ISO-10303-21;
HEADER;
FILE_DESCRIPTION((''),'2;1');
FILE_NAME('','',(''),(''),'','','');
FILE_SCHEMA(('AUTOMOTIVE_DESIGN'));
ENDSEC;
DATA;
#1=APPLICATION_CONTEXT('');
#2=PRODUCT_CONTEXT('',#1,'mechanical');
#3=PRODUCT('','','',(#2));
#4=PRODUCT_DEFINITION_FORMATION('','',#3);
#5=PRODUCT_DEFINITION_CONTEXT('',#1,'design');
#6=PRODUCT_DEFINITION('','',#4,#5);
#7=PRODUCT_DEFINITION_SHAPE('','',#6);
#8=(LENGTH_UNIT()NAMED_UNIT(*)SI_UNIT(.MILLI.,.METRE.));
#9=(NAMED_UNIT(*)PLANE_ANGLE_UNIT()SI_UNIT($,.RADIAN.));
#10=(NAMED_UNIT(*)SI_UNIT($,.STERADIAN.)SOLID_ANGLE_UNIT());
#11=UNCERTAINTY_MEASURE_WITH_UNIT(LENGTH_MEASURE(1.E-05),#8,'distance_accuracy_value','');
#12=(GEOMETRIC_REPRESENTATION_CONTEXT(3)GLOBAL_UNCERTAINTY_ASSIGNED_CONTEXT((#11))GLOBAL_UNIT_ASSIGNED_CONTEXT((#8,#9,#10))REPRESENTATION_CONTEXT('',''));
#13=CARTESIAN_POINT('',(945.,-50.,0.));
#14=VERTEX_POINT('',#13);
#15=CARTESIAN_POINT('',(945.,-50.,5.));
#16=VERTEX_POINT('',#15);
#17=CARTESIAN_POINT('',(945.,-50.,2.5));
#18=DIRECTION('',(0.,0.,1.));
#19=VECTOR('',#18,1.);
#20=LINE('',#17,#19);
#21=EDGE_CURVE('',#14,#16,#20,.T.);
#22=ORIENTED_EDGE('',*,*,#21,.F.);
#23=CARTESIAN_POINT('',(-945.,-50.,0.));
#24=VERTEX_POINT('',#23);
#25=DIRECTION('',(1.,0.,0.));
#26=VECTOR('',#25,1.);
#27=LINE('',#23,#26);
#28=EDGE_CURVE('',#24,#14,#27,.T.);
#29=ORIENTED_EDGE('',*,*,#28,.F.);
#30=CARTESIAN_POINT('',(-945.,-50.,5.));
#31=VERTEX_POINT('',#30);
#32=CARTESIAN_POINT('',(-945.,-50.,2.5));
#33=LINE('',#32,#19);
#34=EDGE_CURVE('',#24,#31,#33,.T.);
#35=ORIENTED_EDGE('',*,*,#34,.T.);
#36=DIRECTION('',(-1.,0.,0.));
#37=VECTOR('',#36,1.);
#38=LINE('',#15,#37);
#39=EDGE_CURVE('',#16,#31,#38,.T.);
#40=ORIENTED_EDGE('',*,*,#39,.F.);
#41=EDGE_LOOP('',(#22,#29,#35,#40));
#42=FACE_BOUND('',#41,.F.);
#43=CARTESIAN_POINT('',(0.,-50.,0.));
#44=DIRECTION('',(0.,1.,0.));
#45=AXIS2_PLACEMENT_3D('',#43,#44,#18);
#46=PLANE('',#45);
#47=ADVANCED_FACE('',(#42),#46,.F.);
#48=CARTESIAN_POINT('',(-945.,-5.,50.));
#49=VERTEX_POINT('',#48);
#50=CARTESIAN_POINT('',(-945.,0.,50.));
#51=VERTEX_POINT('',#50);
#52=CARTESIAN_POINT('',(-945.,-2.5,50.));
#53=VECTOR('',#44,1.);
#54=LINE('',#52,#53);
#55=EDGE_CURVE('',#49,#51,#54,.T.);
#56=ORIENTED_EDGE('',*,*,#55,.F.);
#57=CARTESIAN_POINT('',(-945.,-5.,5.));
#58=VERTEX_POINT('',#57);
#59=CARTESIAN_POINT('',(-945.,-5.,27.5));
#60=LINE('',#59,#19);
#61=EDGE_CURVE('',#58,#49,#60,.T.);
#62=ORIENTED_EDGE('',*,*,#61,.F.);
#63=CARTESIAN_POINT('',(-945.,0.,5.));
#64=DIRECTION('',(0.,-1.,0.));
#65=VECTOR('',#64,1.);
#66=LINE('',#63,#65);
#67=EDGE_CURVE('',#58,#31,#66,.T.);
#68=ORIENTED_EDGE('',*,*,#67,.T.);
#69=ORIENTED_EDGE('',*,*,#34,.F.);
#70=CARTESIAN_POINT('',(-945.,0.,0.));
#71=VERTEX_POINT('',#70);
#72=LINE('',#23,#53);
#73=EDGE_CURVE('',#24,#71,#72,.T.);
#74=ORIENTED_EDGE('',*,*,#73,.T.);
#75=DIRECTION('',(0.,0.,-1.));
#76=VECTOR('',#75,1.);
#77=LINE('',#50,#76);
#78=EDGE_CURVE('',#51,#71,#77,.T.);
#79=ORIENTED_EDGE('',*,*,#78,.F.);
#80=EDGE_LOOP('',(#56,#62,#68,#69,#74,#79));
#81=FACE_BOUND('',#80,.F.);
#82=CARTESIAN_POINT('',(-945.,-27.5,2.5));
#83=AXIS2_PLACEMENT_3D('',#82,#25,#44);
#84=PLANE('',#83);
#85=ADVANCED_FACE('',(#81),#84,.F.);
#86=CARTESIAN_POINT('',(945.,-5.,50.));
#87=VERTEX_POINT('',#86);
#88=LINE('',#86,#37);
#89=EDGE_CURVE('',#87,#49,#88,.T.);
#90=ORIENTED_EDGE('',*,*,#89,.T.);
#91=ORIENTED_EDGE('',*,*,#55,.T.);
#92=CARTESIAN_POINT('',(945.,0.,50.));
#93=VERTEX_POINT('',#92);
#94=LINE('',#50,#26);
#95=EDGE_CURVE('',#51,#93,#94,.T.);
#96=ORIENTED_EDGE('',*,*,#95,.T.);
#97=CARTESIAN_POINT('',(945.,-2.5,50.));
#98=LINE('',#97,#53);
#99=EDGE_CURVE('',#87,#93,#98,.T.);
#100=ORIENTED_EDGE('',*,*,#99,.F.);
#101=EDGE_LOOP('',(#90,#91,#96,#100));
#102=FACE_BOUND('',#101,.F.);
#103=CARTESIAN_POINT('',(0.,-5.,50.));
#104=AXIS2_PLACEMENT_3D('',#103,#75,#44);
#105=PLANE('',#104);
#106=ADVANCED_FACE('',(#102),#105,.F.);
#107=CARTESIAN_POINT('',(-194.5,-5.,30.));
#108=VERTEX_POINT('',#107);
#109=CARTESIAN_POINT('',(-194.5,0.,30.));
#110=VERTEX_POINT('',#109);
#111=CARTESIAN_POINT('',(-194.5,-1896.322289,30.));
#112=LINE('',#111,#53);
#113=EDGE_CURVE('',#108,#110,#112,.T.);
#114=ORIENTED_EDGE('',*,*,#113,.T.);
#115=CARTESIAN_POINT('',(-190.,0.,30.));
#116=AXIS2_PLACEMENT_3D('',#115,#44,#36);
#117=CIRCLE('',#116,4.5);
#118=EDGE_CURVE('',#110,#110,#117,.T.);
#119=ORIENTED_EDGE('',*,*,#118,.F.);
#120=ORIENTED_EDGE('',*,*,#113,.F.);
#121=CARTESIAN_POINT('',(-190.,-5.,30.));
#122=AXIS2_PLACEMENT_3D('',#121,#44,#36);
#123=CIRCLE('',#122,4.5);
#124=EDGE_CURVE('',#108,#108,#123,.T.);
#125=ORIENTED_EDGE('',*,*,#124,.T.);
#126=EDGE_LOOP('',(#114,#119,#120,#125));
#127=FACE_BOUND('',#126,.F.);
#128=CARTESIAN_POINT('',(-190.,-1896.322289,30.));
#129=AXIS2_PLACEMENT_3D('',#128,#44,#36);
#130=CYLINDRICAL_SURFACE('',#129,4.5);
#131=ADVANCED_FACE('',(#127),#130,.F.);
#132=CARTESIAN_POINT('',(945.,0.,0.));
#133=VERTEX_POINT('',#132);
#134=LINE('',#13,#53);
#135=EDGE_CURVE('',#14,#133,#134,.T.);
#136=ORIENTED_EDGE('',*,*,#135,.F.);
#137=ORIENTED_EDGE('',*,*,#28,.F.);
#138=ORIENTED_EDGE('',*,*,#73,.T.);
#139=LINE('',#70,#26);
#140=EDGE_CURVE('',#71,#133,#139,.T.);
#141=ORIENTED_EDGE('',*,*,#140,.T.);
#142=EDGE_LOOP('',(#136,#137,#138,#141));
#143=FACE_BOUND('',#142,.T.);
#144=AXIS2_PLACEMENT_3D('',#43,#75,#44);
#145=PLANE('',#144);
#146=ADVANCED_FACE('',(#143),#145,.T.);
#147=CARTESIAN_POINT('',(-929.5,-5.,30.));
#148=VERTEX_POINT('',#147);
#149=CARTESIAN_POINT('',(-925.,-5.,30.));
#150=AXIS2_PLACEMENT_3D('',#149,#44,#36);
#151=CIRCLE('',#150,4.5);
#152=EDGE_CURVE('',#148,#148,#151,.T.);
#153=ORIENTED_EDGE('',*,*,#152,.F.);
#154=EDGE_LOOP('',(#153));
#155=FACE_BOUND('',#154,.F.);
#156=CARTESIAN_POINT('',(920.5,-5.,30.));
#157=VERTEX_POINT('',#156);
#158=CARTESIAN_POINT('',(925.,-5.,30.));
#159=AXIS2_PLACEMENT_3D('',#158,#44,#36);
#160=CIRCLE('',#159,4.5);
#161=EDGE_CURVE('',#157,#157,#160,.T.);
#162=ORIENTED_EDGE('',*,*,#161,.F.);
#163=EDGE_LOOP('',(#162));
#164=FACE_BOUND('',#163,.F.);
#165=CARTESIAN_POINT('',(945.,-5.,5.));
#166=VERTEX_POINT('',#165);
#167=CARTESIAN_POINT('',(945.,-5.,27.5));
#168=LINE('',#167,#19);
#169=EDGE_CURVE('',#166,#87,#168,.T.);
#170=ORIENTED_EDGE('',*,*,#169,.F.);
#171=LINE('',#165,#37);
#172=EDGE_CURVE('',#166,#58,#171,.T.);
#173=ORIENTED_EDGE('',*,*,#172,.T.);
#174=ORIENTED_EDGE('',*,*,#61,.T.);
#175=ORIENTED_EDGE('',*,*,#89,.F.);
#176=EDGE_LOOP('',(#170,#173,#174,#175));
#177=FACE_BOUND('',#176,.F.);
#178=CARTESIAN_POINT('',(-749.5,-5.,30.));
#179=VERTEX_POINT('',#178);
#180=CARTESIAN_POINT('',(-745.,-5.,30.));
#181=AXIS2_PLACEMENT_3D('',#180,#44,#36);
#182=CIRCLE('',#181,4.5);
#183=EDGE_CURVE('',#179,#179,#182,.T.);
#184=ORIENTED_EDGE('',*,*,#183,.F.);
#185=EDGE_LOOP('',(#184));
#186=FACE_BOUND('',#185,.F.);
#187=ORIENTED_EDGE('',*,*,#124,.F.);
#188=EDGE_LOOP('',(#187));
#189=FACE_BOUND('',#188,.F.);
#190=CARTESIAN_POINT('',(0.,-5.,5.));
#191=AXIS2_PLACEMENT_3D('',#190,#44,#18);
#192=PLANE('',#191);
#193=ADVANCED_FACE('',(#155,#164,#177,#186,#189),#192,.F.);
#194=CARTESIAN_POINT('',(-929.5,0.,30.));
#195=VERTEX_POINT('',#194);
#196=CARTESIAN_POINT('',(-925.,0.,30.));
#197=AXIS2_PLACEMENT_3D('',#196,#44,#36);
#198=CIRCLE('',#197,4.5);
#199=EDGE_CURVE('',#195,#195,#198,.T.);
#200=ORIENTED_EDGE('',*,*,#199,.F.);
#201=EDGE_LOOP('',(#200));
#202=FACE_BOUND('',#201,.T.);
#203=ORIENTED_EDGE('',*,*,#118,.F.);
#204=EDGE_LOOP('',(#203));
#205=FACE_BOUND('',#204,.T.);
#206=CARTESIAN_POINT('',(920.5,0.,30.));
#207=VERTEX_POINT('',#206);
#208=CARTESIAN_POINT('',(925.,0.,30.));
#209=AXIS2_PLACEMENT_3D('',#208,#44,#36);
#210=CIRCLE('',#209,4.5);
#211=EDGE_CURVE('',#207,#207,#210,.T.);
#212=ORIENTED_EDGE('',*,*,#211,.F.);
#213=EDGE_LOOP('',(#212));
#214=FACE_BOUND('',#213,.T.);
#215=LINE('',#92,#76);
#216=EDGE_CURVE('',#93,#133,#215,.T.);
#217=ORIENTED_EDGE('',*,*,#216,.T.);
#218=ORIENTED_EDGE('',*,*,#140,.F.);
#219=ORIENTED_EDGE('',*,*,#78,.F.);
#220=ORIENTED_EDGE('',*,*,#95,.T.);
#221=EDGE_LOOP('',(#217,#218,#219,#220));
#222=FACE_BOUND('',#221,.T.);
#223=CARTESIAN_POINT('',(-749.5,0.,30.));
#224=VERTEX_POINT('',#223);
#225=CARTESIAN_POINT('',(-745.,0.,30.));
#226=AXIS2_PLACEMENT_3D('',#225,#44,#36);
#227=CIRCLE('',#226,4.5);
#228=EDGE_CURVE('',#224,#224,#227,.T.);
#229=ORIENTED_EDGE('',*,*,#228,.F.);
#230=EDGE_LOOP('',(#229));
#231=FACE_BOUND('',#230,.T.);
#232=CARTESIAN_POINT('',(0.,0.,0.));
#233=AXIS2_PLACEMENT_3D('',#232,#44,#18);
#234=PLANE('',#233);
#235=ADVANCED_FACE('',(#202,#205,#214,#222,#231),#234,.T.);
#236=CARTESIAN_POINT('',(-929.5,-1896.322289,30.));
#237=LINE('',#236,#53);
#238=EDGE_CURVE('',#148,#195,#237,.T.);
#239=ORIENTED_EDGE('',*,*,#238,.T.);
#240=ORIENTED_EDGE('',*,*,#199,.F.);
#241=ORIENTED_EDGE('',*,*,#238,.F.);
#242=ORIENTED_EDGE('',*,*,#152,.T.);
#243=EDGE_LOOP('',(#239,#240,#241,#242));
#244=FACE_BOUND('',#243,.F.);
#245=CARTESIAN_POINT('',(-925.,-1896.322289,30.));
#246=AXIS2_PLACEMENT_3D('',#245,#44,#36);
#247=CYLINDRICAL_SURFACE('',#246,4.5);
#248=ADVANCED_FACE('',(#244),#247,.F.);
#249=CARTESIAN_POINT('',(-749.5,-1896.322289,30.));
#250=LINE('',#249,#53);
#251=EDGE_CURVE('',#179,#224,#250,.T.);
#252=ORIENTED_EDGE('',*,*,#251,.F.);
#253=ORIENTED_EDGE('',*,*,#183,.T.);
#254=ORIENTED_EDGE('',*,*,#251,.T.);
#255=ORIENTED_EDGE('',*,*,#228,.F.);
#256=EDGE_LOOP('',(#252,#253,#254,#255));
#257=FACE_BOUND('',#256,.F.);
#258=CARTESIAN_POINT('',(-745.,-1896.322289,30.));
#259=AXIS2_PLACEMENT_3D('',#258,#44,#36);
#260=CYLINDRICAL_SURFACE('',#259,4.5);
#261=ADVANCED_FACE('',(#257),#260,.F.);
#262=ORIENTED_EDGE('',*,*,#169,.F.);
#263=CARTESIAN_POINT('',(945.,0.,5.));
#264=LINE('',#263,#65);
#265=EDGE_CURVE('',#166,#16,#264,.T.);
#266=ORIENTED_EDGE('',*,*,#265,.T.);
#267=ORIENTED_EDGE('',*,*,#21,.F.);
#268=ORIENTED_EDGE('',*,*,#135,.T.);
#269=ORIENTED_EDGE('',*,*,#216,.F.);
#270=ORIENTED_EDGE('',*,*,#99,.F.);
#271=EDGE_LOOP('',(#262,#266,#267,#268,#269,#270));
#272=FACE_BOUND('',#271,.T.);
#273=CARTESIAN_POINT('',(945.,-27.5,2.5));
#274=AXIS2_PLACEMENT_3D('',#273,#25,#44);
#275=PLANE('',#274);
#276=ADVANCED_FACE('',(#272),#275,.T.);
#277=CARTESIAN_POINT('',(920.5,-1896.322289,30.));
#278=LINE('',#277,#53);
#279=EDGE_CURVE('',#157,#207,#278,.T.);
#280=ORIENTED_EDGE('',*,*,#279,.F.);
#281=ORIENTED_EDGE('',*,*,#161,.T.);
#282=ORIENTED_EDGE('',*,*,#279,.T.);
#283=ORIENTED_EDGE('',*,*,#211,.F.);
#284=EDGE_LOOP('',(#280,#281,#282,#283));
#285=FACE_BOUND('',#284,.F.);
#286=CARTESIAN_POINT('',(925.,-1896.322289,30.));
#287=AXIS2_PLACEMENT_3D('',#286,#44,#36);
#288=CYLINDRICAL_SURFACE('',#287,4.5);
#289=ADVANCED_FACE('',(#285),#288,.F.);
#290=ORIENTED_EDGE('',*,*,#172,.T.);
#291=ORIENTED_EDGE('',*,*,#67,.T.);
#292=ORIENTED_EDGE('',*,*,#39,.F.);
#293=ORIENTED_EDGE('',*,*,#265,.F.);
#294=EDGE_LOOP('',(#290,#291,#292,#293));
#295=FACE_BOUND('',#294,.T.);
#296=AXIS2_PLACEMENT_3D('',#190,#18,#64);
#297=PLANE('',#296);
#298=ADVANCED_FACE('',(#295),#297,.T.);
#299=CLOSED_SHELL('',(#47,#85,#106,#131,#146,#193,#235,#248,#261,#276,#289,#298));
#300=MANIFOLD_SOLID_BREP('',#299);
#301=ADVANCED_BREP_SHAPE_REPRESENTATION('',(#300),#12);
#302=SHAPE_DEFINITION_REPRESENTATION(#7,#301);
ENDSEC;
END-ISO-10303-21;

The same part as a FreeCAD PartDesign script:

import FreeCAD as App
import Part
import Sketcher
Q = App.Units.Quantity


def add_polygon(sketch, points):
    """Adds a closed chain of lines whose ends are joined by coincident constraints."""
    first, n = sketch.GeometryCount, len(points)
    for a, b in zip(points, points[1:] + points[:1]):
        sketch.addGeometry(Part.LineSegment(App.Vector(*a, 0), App.Vector(*b, 0)), False)
    for i in range(n):
        sketch.addConstraint(Sketcher.Constraint("Coincident", first + i, 2, first + (i + 1) % n, 1))

doc = App.newDocument("Part")
body = doc.addObject("PartDesign::Body", "Body")

sketch1 = body.newObject("Sketcher::SketchObject", "Sketch")
sketch1.AttachmentSupport = (doc.getObject("YZ_Plane"), [""])
sketch1.MapMode = "FlatFace"
add_polygon(sketch1, [(-50, 5), (-50, 0), (0, 0), (0, 50), (-5, 50), (-5, 5)])
sketch1.addConstraint(Sketcher.Constraint("Vertical", 0))
sketch1.addConstraint(Sketcher.Constraint("Horizontal", 1))
sketch1.addConstraint(Sketcher.Constraint("Vertical", 2))
sketch1.addConstraint(Sketcher.Constraint("Horizontal", 3))
sketch1.addConstraint(Sketcher.Constraint("Vertical", 4))
sketch1.addConstraint(Sketcher.Constraint("Horizontal", 5))
sketch1.addConstraint(Sketcher.Constraint("Coincident", 1, 2, -1, 1))
sketch1.addConstraint(Sketcher.Constraint("Equal", 3, 0))
sketch1.addConstraint(Sketcher.Constraint("Equal", 1, 2))
sketch1.addConstraint(Sketcher.Constraint("DistanceX", 1, 1, 1, 2, Q("50 mm")))
sketch1.addConstraint(Sketcher.Constraint("DistanceX", 3, 2, 3, 1, Q("5 mm")))
pad1 = body.newObject("PartDesign::Pad", "Pad")
pad1.Profile = sketch1
pad1.Length = 1890
pad1.Midplane = True

sketch2 = body.newObject("Sketcher::SketchObject", "Sketch001")
sketch2.AttachmentSupport = (doc.getObject("XZ_Plane"), [""])
sketch2.MapMode = "FlatFace"
sketch2.AttachmentOffset = App.Placement(App.Vector(0, 0, 5), App.Rotation())
add_polygon(sketch2, [(-945, 50), (-945, 5), (945, 5), (945, 50)])
sketch2.addConstraint(Sketcher.Constraint("Vertical", 0))
sketch2.addConstraint(Sketcher.Constraint("Horizontal", 1))
sketch2.addConstraint(Sketcher.Constraint("Vertical", 2))
sketch2.addConstraint(Sketcher.Constraint("Horizontal", 3))
sketch2.addConstraint(Sketcher.Constraint("DistanceX", 1, 1, 1, 2, Q("1890 mm")))
sketch2.addConstraint(Sketcher.Constraint("DistanceY", 0, 2, 0, 1, Q("45 mm")))
sketch2.addConstraint(Sketcher.Constraint("DistanceX", 0, 2, -1, 1, Q("945 mm")))
sketch2.addConstraint(Sketcher.Constraint("DistanceY", -1, 1, 0, 2, Q("5 mm")))
pad2 = body.newObject("PartDesign::Pad", "Pad001")
pad2.Profile = sketch2
pad2.Length = 5
pad2.Reversed = True

sketch3 = body.newObject("Sketcher::SketchObject", "Sketch002")
sketch3.AttachmentSupport = (doc.getObject("XZ_Plane"), [""])
sketch3.MapMode = "FlatFace"
sketch3.AttachmentOffset = App.Placement(App.Vector(0, 0, 5), App.Rotation())
sketch3.addGeometry(Part.Circle(App.Vector(-925, 30, 0), App.Vector(0, 0, 1), 4.5), False)
sketch3.addGeometry(Part.Circle(App.Vector(-745, 30, 0), App.Vector(0, 0, 1), 4.5), False)
sketch3.addGeometry(Part.Circle(App.Vector(-190, 30, 0), App.Vector(0, 0, 1), 4.5), False)
sketch3.addGeometry(Part.Circle(App.Vector(925, 30, 0), App.Vector(0, 0, 1), 4.5), False)
sketch3.addConstraint(Sketcher.Constraint("Equal", 0, 1))
sketch3.addConstraint(Sketcher.Constraint("Equal", 1, 2))
sketch3.addConstraint(Sketcher.Constraint("Equal", 2, 3))
sketch3.addConstraint(Sketcher.Constraint("Symmetric", 0, 3, 3, 3, -2))
sketch3.addConstraint(Sketcher.Constraint("Horizontal", 0, 3, 1, 3))
sketch3.addConstraint(Sketcher.Constraint("Horizontal", 1, 3, 2, 3))
sketch3.addConstraint(Sketcher.Constraint("Diameter", 0, Q("9 mm")))
sketch3.addConstraint(Sketcher.Constraint("DistanceX", 0, 3, -1, 1, Q("925 mm")))
sketch3.addConstraint(Sketcher.Constraint("DistanceY", -1, 1, 0, 3, Q("30 mm")))
sketch3.addConstraint(Sketcher.Constraint("DistanceX", 1, 3, -1, 1, Q("745 mm")))
sketch3.addConstraint(Sketcher.Constraint("DistanceX", 2, 3, -1, 1, Q("190 mm")))
doc.recompute()
hole = body.newObject("PartDesign::Hole", "Hole")
hole.Profile = sketch3
hole.ThreadType = "None"
hole.Diameter = 9
hole.DepthType = "ThroughAll"

doc.recompute()
